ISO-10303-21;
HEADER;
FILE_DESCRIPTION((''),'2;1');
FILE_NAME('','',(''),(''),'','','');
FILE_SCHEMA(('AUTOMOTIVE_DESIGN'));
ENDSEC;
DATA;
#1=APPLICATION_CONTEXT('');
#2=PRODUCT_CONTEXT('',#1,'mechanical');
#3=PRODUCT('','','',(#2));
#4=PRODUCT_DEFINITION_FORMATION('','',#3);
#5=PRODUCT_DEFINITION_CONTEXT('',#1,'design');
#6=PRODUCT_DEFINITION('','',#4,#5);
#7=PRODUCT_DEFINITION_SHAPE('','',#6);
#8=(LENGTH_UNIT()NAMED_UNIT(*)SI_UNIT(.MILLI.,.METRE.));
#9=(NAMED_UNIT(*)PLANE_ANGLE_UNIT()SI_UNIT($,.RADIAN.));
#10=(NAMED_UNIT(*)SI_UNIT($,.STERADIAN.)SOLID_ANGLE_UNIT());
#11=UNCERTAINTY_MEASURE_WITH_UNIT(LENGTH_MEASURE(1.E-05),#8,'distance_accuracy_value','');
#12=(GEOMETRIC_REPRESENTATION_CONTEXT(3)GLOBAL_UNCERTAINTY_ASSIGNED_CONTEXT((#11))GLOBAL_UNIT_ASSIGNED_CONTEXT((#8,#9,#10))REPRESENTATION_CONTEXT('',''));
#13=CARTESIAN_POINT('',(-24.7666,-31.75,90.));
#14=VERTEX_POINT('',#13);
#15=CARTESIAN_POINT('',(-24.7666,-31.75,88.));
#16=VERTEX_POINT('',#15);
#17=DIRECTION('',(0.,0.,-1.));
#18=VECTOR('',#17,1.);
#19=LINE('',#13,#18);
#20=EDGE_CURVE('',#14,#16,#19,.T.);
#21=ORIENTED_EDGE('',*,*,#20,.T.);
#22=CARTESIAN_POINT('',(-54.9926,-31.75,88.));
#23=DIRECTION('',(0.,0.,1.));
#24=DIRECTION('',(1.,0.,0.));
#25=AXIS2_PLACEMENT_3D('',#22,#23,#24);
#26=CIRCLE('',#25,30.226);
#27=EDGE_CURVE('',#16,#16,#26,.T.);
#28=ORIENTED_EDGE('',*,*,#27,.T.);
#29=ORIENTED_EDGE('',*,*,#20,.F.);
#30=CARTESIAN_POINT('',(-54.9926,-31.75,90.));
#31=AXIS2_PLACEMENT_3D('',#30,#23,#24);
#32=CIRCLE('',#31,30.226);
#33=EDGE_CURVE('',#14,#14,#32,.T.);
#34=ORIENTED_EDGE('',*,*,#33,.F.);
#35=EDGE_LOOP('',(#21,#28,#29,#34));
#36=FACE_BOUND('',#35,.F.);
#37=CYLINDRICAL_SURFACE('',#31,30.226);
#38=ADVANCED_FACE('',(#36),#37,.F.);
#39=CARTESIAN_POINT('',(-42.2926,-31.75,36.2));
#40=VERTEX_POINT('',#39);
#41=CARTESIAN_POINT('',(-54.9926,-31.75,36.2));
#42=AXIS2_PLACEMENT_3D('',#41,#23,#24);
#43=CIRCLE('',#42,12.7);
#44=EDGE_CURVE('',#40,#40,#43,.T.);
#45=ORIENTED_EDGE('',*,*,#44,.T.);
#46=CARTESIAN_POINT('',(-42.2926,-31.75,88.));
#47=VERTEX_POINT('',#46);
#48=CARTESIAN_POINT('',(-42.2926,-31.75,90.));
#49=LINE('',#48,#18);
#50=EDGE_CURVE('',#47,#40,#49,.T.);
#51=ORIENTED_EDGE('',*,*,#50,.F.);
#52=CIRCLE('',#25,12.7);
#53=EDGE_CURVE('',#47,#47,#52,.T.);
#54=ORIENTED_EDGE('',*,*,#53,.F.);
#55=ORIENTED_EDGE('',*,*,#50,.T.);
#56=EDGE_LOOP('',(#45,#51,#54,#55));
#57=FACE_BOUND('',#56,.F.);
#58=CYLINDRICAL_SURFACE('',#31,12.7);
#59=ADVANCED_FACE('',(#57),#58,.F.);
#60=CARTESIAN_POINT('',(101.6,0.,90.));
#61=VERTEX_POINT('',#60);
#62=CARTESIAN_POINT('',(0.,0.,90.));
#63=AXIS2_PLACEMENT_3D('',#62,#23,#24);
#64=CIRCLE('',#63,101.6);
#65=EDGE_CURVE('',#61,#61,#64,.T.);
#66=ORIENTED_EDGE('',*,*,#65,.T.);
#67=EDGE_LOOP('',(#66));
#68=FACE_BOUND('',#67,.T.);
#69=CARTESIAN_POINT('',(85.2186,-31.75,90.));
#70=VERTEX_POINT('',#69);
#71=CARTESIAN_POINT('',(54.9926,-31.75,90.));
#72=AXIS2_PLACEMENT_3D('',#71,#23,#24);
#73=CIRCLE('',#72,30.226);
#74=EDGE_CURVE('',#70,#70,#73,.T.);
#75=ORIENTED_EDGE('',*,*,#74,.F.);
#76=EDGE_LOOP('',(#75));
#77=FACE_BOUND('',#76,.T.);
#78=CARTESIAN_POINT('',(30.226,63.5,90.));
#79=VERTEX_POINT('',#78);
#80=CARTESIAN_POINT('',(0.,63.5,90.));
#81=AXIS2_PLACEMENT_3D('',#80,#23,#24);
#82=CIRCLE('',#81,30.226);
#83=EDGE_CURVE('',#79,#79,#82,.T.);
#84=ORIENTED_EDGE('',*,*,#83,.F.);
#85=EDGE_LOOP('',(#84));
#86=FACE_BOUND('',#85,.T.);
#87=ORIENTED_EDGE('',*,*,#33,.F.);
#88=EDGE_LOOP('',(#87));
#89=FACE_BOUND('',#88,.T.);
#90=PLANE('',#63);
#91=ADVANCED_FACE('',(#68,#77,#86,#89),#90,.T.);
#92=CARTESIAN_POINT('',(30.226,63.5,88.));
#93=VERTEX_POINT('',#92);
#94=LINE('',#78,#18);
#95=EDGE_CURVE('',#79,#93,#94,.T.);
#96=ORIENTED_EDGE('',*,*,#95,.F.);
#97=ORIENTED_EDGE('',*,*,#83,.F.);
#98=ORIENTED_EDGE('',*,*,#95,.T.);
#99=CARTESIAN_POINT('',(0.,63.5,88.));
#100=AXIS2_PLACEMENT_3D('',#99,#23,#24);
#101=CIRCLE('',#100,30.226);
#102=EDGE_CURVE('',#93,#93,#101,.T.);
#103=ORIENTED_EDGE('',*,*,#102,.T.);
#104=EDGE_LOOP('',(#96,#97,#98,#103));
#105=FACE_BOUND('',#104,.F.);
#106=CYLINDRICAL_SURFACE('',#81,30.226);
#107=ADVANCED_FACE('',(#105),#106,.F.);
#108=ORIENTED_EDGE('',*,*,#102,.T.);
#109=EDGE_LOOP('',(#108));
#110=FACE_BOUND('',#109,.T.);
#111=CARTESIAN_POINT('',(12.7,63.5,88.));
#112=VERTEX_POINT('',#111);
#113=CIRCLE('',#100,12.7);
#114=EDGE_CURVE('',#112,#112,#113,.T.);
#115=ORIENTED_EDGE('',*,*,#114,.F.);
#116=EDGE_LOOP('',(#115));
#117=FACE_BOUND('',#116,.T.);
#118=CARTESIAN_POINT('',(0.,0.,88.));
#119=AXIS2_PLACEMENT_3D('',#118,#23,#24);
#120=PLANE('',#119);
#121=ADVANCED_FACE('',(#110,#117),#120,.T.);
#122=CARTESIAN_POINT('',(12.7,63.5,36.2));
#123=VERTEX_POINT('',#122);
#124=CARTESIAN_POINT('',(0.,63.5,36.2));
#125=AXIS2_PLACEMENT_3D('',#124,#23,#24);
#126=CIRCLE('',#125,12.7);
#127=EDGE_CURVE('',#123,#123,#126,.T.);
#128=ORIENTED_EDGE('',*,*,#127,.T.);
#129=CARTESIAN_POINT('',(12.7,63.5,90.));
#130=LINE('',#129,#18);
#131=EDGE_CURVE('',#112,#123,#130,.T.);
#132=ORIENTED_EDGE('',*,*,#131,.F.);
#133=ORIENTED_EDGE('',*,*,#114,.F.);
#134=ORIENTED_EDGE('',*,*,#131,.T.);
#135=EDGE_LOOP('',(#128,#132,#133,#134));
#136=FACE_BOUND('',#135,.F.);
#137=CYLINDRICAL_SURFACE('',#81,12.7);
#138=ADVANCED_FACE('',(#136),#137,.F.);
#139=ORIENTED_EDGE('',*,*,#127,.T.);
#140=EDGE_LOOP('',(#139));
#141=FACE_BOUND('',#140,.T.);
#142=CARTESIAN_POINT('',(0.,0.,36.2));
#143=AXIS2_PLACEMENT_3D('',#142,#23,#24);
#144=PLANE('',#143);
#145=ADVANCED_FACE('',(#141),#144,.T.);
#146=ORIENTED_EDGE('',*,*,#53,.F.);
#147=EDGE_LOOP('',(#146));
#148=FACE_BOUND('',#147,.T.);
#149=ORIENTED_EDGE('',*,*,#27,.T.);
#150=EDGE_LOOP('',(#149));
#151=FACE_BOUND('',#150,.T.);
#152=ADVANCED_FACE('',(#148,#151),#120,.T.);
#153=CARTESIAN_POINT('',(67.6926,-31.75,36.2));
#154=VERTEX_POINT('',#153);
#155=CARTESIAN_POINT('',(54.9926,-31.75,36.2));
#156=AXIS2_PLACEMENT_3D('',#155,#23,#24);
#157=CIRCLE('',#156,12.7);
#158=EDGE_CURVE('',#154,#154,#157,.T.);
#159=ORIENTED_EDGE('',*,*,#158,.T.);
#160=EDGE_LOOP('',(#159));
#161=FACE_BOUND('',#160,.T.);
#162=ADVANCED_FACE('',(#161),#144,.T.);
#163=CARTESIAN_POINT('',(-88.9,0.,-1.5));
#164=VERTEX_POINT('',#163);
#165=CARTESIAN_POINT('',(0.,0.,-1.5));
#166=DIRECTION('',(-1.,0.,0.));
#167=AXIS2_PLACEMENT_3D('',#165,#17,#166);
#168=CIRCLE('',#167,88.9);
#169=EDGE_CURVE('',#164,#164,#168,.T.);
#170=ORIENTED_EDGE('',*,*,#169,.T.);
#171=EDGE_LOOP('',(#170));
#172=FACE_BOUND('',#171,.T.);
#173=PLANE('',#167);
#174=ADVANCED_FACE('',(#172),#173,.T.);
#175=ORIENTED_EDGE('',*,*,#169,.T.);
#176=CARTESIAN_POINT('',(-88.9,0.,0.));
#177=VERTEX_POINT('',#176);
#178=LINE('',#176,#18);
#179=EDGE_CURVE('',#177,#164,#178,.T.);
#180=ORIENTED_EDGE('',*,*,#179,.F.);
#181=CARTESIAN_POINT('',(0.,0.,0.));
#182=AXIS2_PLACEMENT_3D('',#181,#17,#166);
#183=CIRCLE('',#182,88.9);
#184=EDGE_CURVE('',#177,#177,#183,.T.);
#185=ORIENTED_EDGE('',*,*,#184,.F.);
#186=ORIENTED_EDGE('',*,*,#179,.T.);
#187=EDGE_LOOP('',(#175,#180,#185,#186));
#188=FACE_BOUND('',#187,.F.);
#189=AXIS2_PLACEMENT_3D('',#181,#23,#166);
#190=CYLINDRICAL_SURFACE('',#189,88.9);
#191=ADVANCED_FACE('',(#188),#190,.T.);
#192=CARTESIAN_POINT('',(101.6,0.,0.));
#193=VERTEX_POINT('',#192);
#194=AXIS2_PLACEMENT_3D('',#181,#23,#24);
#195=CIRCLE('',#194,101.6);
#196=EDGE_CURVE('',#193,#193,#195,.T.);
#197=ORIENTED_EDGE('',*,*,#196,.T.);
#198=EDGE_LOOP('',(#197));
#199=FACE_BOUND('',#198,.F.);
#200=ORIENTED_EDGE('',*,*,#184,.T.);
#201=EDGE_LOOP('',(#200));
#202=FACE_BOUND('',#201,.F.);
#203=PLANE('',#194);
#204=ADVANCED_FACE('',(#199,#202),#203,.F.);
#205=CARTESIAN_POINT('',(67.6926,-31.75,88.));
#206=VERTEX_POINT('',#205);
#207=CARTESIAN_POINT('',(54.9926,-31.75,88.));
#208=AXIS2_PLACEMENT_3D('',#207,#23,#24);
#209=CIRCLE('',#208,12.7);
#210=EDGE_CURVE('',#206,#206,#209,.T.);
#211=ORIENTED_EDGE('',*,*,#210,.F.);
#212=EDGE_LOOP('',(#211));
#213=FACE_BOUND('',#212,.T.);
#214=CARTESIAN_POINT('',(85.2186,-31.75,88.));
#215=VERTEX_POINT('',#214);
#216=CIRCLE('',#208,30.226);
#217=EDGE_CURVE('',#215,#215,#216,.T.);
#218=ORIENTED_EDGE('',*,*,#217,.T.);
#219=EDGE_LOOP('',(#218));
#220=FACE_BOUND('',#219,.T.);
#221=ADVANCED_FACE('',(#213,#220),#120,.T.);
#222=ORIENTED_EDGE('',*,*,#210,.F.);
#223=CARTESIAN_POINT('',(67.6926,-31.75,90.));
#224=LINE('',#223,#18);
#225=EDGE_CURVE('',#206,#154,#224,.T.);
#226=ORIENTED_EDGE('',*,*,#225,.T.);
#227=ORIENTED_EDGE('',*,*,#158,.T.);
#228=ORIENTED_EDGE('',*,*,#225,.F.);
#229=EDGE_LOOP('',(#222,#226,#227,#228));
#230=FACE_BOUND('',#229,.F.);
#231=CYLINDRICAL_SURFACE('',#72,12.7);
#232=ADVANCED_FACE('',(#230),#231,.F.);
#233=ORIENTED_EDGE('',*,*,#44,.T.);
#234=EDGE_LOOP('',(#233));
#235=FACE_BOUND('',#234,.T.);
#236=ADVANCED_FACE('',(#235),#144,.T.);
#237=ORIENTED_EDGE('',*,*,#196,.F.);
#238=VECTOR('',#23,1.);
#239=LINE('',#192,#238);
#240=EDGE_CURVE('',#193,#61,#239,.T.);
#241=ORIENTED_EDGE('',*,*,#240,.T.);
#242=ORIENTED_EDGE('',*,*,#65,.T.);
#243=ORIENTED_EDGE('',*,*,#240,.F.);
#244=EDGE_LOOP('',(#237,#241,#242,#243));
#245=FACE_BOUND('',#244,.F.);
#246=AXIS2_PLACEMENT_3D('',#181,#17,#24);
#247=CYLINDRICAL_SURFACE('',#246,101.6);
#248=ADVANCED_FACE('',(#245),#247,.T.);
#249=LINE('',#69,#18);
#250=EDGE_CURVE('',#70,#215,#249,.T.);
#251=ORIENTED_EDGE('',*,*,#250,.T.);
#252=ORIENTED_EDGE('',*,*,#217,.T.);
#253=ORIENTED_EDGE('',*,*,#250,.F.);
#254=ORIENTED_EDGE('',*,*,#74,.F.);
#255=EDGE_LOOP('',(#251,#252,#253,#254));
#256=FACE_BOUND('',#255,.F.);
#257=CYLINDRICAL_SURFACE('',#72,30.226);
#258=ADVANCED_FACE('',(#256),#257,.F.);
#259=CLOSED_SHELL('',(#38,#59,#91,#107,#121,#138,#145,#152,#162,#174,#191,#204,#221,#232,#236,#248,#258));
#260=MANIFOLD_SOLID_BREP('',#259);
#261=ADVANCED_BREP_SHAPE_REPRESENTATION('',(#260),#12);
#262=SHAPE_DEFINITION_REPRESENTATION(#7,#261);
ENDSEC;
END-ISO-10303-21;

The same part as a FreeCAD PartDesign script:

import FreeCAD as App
import Part
import Sketcher
from FreeCAD import Vector
Q = App.Units.Quantity

doc = App.newDocument("Part")
params = doc.addObject("Spreadsheet::Sheet", "Params")
for row, (alias, value) in enumerate([
    ("sketch1_diameter", "8 in"),
    ("pad1_length", "3.5433071 in"),
    ("sketch2_diameter", "2.38 in"),
    ("pocket1_length", "2 mm"),
    ("sketch3_diameter", "7 in"),
    ("pad2_length", "1.5 mm"),
    ("sketch4_diameter", "1 in"),
    ("pocket2_length", "2.1181102 in"),
], start=1):
    params.set(f"A{row}", alias)
    params.set(f"B{row}", "=" + value)
    params.setAlias(f"B{row}", alias)

body = doc.addObject("PartDesign::Body", "Body")

sketch1 = doc.addObject("Sketcher::SketchObject", "Sketch")
body.addObject(sketch1)
sketch1.AttachmentSupport = (doc.XY_Plane, [""])
sketch1.MapMode = "FlatFace"
sketch1.addGeometry(Part.Circle(Vector(0, 0, 0), Vector(0, 0, 1), 102), False)
sketch1.addConstraint([
    Sketcher.Constraint("Coincident", 0, 3, -1, 1),
    Sketcher.Constraint("Diameter", 0, Q("8 in")),
])
sketch1.setExpression("Constraints[1]", "Params.sketch1_diameter")
pad1 = doc.addObject("PartDesign::Pad", "Pad")
body.addObject(pad1)
pad1.Profile = sketch1
pad1.setExpression("Length", "Params.pad1_length")

sketch2 = doc.addObject("Sketcher::SketchObject", "Sketch001")
body.addObject(sketch2)
sketch2.AttachmentSupport = (doc.XY_Plane, [""])
sketch2.MapMode = "FlatFace"
sketch2.AttachmentOffset = App.Placement(Vector(0, 0, 3.5433071 * 25.4), App.Rotation())
sketch2.addGeometry([
    Part.Circle(Vector(0, 64, 0), Vector(0, 0, 1), 30),
    Part.Circle(Vector(-55, -32, 0), Vector(0, 0, 1), 30),
    Part.Circle(Vector(55, -32, 0), Vector(0, 0, 1), 30),
], False)
sketch2.addConstraint([
    Sketcher.Constraint("Equal", 0, 1),
    Sketcher.Constraint("Equal", 1, 2),
    Sketcher.Constraint("Symmetric", 1, 3, 2, 3, -2),
    Sketcher.Constraint("PointOnObject", 0, 3, -2),
    Sketcher.Constraint("Diameter", 0, Q("2.38 in")),
    Sketcher.Constraint("DistanceY", -1, 1, 0, 3, Q("2.5 in")),
    Sketcher.Constraint("DistanceY", 1, 3, -1, 1, Q("1.25 in")),
    Sketcher.Constraint("DistanceX", 1, 3, -1, 1, Q("54.9926 mm")),
])
sketch2.setExpression("Constraints[4]", "Params.sketch2_diameter")
pocket1 = doc.addObject("PartDesign::Pocket", "Pocket")
body.addObject(pocket1)
pocket1.Profile = sketch2
pocket1.setExpression("Length", "Params.pocket1_length")

sketch3 = doc.addObject("Sketcher::SketchObject", "Sketch002")
body.addObject(sketch3)
sketch3.AttachmentSupport = (doc.XY_Plane, [""])
sketch3.MapMode = "FlatFace"
sketch3.addGeometry(Part.Circle(Vector(0, 0, 0), Vector(0, 0, 1), 89), False)
sketch3.addConstraint([
    Sketcher.Constraint("Coincident", 0, 3, -1, 1),
    Sketcher.Constraint("Diameter", 0, Q("7 in")),
])
sketch3.setExpression("Constraints[1]", "Params.sketch3_diameter")
pad2 = doc.addObject("PartDesign::Pad", "Pad001")
body.addObject(pad2)
pad2.Profile = sketch3
pad2.setExpression("Length", "Params.pad2_length")
pad2.Reversed = True

sketch4 = doc.addObject("Sketcher::SketchObject", "Sketch003")
body.addObject(sketch4)
sketch4.AttachmentSupport = (doc.XY_Plane, [""])
sketch4.MapMode = "FlatFace"
sketch4.AttachmentOffset = App.Placement(Vector(0, 0, 3.5433071 * 25.4), App.Rotation())
sketch4.addGeometry([
    Part.Circle(Vector(55, -32, 0), Vector(0, 0, 1), 13),
    Part.Circle(Vector(0, 64, 0), Vector(0, 0, 1), 13),
    Part.Circle(Vector(-55, -32, 0), Vector(0, 0, 1), 13),
], False)
sketch4.addConstraint([
    Sketcher.Constraint("Equal", 0, 1),
    Sketcher.Constraint("Equal", 1, 2),
    Sketcher.Constraint("Symmetric", 0, 3, 2, 3, -2),
    Sketcher.Constraint("PointOnObject", 1, 3, -2),
    Sketcher.Constraint("Diameter", 0, Q("1 in")),
    Sketcher.Constraint("DistanceY", -1, 1, 1, 3, Q("2.5 in")),
    Sketcher.Constraint("DistanceY", 0, 3, -1, 1, Q("1.25 in")),
    Sketcher.Constraint("DistanceX", -1, 1, 0, 3, Q("54.9926 mm")),
])
sketch4.setExpression("Constraints[4]", "Params.sketch4_diameter")
pocket2 = doc.addObject("PartDesign::Pocket", "Pocket001")
body.addObject(pocket2)
pocket2.Profile = sketch4
pocket2.setExpression("Length", "Params.pocket2_length")

doc.recompute()
